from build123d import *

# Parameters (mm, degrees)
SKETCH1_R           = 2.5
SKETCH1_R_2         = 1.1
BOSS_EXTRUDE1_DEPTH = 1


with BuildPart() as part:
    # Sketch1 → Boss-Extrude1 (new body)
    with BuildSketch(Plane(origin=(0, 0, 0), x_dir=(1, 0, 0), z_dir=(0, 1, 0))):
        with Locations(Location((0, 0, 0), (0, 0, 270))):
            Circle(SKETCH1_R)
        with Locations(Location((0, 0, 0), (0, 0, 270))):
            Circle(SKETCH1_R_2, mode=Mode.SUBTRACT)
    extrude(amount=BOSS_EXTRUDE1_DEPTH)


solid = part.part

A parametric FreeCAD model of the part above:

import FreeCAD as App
import Part
import Sketcher
from FreeCAD import Vector

doc = App.newDocument("Part")
body = doc.addObject("PartDesign::Body", "Body")

# Sketch on XZ plane
sketch1 = body.newObject("Sketcher::SketchObject", "Sketch")
sketch1.AttachmentSupport = (doc.getObject("XZ_Plane"), [""])
sketch1.MapMode = "FlatFace"
sketch1.addGeometry([
    Part.Circle(Vector(0, 0, 0), Vector(0, 0, 1), 2.5),
    Part.Circle(Vector(0, 0, 0), Vector(0, 0, 1), 1.1),
], False)
sketch1.addConstraint([
    Sketcher.Constraint("Coincident", 0, 3, -1, 1),
    Sketcher.Constraint("Coincident", 1, 3, -1, 1),
    Sketcher.Constraint("Diameter", 0, 5.0),
    Sketcher.Constraint("Diameter", 1, 2.2),
])
pad1 = body.newObject("PartDesign::Pad", "Pad")
pad1.Profile = sketch1
pad1.Length = 1
pad1.Reversed = True

doc.recompute()
